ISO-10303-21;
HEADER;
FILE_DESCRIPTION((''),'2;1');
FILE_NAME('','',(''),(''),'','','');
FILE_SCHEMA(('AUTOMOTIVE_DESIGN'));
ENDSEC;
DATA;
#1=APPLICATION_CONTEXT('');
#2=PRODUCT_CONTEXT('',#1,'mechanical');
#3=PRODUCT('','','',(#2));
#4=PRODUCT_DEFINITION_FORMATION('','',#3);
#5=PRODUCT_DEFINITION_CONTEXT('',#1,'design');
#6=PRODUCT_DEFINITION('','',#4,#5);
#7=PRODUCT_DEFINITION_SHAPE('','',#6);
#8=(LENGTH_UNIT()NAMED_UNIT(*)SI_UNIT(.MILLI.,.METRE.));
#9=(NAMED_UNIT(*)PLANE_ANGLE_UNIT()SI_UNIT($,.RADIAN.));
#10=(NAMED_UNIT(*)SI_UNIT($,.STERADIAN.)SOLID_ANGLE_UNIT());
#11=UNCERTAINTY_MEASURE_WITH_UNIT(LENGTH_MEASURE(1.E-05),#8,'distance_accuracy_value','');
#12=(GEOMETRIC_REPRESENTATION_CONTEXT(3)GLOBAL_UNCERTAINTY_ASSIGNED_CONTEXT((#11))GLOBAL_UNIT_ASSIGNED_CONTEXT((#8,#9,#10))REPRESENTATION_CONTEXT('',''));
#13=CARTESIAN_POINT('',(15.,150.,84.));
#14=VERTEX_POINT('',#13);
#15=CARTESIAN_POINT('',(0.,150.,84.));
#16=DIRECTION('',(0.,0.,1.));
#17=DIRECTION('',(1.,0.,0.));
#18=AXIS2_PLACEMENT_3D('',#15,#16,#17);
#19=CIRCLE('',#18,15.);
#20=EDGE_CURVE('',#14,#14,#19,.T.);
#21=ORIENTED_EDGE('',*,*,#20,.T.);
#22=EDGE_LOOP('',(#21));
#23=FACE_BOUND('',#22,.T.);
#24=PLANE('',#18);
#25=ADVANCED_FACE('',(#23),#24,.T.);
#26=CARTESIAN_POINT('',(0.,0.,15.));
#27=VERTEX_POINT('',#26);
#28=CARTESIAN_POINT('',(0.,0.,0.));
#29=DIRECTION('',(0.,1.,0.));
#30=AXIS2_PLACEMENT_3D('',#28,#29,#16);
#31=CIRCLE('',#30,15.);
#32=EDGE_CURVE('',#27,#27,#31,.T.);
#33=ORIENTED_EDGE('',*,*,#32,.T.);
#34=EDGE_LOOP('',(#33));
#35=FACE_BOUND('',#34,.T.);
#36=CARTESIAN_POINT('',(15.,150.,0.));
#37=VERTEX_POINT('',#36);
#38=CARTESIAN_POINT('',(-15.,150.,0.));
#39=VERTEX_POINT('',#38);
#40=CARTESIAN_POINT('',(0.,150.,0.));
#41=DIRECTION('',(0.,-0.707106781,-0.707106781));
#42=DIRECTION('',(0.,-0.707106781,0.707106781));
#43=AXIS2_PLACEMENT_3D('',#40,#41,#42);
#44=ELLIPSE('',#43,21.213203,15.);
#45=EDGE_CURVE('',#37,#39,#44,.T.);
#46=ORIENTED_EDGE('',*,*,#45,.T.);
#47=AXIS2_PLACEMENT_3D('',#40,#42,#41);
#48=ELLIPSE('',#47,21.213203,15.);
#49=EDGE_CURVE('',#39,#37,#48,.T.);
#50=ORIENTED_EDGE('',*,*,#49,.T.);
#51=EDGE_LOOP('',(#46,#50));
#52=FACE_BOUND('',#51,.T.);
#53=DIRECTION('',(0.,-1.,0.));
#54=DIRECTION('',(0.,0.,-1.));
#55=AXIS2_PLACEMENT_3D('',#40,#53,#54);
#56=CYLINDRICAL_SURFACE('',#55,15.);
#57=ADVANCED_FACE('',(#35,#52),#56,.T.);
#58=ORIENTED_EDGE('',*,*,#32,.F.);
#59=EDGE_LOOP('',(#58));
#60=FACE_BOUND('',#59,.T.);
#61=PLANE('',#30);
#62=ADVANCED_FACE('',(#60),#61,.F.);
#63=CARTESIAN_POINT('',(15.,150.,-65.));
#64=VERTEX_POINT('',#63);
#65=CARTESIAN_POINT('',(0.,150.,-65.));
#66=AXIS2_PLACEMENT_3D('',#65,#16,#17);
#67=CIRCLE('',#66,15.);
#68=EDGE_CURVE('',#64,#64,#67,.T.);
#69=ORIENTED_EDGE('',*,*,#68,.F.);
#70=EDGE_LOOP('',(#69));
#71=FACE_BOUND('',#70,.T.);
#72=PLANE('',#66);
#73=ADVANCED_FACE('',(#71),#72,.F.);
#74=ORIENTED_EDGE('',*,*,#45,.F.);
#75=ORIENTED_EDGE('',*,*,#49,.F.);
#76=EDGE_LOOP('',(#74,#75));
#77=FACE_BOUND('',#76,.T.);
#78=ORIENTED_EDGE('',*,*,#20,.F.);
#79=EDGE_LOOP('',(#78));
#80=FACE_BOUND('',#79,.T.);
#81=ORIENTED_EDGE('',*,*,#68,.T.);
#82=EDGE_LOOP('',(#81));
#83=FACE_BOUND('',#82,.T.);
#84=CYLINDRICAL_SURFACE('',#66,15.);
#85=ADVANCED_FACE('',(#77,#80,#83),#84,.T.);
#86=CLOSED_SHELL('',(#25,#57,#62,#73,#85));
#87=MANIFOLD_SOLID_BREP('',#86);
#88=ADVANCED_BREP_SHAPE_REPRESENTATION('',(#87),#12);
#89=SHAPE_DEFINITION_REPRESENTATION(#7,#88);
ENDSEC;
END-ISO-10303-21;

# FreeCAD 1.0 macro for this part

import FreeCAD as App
import Part
import Sketcher

V = App.Vector
Q = App.Units.Quantity

doc = App.newDocument("Part")
body = doc.addObject("PartDesign::Body", "Body")

sketch1 = body.newObject("Sketcher::SketchObject", "Sketch")
sketch1.AttachmentSupport = (doc.getObject("XZ_Plane"), [""])
sketch1.MapMode = "FlatFace"
sketch1.addGeometry(Part.Circle(V(0, 0, 0), V(0, 0, 1), 15), False)
sketch1.addConstraint(Sketcher.Constraint("Coincident", 0, 3, -1, 1))
sketch1.addConstraint(Sketcher.Constraint("Diameter", 0, Q("30 mm")))
pad1 = body.newObject("PartDesign::Pad", "Pad")
pad1.Profile = sketch1
pad1.Length = 150
pad1.Reversed = True

sketch2 = body.newObject("Sketcher::SketchObject", "Sketch001")
sketch2.AttachmentSupport = (doc.getObject("XY_Plane"), [""])
sketch2.MapMode = "FlatFace"
sketch2.addGeometry(Part.Circle(V(0, 150, 0), V(0, 0, 1), 15), False)
sketch2.addConstraint(Sketcher.Constraint("PointOnObject", 0, 3, -2))
sketch2.addConstraint(Sketcher.Constraint("Diameter", 0, Q("30 mm")))
sketch2.addConstraint(Sketcher.Constraint("DistanceY", -1, 1, 0, 3, Q("150 mm")))
pad2 = body.newObject("PartDesign::Pad", "Pad001")
pad2.Profile = sketch2
pad2.Type = "TwoLengths"
pad2.Length = 84
pad2.Length2 = 65

doc.recompute()
